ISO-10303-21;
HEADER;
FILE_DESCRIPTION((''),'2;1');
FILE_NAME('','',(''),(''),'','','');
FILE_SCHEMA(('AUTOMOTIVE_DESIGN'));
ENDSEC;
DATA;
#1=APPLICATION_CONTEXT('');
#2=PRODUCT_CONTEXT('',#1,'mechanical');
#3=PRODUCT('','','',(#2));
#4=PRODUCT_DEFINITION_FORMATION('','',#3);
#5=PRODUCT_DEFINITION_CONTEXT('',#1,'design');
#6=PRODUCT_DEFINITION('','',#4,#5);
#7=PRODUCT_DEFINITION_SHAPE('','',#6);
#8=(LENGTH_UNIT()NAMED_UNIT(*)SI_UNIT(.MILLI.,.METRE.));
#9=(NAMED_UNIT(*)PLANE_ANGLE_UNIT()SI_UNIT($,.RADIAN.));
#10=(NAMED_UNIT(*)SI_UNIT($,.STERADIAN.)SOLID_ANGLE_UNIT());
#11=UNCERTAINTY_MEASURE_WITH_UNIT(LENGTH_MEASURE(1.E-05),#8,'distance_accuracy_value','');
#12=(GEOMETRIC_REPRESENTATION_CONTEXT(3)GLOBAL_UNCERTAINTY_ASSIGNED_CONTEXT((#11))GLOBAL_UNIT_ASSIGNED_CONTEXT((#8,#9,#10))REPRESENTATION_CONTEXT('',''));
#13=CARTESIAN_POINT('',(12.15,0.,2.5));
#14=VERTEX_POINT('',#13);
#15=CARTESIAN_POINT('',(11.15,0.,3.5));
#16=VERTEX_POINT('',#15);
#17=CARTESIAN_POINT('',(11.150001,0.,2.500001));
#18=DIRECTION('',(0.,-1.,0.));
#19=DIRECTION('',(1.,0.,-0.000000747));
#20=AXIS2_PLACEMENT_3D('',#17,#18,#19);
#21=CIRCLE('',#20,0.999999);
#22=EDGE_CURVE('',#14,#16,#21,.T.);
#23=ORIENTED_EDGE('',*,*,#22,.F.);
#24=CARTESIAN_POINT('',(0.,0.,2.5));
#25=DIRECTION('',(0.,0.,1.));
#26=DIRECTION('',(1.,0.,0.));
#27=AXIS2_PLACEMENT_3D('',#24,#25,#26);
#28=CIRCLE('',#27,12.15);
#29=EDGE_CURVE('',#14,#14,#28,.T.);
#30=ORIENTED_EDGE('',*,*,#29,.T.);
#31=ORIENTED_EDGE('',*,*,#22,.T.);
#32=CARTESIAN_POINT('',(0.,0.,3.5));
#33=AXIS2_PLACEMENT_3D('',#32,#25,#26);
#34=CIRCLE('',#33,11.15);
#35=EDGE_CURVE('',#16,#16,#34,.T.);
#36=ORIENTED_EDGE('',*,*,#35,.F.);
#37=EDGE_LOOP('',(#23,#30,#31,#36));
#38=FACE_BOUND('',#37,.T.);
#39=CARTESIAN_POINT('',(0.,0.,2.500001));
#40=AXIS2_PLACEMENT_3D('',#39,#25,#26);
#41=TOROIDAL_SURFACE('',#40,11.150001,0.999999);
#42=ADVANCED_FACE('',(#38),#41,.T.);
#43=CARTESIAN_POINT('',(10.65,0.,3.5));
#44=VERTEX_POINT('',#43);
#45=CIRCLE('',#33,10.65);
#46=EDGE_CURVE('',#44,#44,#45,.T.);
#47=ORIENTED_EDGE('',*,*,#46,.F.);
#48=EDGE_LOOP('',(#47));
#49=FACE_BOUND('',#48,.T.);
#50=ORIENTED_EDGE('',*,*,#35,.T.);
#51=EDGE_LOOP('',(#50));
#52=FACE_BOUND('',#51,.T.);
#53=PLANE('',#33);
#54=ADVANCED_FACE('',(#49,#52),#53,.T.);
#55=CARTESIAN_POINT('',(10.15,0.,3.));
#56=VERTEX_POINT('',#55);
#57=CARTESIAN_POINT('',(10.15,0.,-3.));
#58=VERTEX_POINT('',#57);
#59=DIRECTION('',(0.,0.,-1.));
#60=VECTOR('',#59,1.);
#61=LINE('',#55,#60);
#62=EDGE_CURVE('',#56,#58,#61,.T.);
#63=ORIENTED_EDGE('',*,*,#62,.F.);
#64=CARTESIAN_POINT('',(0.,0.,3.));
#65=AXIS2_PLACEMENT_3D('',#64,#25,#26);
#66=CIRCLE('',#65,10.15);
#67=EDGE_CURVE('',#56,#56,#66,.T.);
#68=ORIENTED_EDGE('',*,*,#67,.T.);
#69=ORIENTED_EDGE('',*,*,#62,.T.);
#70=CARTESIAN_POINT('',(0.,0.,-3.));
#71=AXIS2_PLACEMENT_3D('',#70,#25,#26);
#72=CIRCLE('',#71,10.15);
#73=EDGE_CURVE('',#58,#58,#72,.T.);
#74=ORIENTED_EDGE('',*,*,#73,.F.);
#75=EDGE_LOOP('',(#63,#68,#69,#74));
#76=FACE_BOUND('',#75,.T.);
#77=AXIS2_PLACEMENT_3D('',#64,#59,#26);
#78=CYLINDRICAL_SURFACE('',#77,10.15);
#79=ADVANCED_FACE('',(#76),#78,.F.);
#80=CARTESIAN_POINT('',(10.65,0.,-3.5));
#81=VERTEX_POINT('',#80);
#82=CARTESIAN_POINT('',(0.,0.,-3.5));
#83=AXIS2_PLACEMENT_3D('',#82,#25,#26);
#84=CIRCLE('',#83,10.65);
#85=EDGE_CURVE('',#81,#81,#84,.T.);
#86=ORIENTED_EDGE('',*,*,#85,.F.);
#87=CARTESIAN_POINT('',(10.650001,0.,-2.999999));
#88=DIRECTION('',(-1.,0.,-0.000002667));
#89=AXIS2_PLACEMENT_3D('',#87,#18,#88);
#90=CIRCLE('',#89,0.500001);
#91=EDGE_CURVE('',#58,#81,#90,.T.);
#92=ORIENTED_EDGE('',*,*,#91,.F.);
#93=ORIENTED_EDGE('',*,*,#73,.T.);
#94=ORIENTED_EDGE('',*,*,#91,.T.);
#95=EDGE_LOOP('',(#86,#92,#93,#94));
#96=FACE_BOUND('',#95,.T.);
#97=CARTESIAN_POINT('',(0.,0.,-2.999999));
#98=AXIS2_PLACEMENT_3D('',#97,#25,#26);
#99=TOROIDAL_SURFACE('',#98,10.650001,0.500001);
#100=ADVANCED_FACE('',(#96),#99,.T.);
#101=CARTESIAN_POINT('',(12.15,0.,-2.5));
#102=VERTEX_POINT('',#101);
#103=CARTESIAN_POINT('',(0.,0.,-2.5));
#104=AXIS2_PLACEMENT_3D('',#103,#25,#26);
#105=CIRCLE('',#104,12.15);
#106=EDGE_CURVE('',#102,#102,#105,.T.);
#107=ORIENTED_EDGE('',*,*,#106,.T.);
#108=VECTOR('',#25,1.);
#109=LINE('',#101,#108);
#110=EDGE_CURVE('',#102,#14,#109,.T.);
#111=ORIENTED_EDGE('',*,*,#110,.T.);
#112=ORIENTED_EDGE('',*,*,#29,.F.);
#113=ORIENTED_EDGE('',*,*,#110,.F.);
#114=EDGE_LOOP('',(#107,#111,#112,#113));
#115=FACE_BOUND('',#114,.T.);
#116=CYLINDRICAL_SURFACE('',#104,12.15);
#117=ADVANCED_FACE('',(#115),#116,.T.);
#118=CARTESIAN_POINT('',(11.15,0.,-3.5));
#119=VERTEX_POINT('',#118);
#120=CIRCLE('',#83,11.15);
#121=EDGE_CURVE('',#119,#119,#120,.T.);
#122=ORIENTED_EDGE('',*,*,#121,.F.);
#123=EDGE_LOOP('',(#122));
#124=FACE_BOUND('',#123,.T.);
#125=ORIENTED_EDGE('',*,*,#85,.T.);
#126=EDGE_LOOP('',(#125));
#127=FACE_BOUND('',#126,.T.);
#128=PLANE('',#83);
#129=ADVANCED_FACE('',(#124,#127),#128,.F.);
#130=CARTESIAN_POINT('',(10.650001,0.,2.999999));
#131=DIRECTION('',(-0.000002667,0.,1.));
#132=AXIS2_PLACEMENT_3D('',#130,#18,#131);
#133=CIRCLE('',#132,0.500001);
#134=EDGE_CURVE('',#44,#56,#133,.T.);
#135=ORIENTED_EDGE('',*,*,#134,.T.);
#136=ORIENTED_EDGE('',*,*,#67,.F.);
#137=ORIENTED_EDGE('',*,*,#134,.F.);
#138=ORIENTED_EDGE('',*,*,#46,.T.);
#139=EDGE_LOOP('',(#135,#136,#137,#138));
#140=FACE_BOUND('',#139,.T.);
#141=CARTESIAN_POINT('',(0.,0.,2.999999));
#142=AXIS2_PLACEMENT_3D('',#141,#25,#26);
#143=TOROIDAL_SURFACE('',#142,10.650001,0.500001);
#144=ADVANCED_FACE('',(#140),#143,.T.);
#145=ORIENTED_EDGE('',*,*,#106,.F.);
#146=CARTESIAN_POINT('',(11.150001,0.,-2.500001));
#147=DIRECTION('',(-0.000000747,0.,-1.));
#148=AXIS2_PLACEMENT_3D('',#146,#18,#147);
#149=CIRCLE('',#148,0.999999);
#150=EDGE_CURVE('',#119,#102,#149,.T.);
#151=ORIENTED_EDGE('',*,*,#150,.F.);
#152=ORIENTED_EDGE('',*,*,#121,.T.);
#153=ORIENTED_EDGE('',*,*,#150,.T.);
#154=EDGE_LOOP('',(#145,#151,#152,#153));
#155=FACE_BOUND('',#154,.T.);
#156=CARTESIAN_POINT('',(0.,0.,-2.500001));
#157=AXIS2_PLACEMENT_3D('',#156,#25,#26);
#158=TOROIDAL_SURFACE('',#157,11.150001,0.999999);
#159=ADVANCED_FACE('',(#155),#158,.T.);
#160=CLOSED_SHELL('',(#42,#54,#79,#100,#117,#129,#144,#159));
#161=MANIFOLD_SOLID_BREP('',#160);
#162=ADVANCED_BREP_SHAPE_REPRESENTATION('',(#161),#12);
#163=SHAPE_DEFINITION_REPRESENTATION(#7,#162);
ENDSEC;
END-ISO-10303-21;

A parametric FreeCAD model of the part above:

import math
import FreeCAD as App
import Part
import Sketcher
Q = App.Units.Quantity

doc = App.newDocument("Part")
params = doc.addObject("Spreadsheet::Sheet", "Params")
for row, (alias, value) in enumerate([
    ("sketch1_radius", "0.999999 mm"),
    ("sketch1_radius2", "0.500001 mm"),
    ("sketch1_height", "6 mm"),
    ("sketch1_height2", "5 mm"),
    ("sketch1_width", "0.5 mm"),
    ("revolution_angle", "360 deg"),
], start=1):
    params.set(f"A{row}", alias)
    params.set(f"B{row}", "=" + value)
    params.setAlias(f"B{row}", alias)

body = doc.addObject("PartDesign::Body", "Body")

# Sketch on XZ plane
sketch1 = body.newObject("Sketcher::SketchObject", "Sketch")
sketch1.AttachmentSupport = (doc.getObject("XZ_Plane"), [""])
sketch1.MapMode = "FlatFace"
sketch1.addGeometry([
    Part.LineSegment(App.Vector(11.2, 3.5, 0), App.Vector(10.7, 3.5, 0)),  # 0
    Part.ArcOfCircle(Part.Circle(App.Vector(10.7, 3, 0), App.Vector(0, 0, 1), 0.5), math.radians(90), math.radians(180)),  # 1
    Part.LineSegment(App.Vector(10.2, 3, 0), App.Vector(10.2, -3, 0)),  # 2
    Part.ArcOfCircle(Part.Circle(App.Vector(10.7, -3, 0), App.Vector(0, 0, 1), 0.5), math.radians(-180), math.radians(-90)),  # 3
    Part.LineSegment(App.Vector(10.7, -3.5, 0), App.Vector(11.2, -3.5, 0)),  # 4
    Part.ArcOfCircle(Part.Circle(App.Vector(11.2, -2.5, 0), App.Vector(0, 0, 1), 1), math.radians(-90), math.radians(0)),  # 5
    Part.LineSegment(App.Vector(12.2, -2.5, 0), App.Vector(12.2, 2.5, 0)),  # 6
    Part.ArcOfCircle(Part.Circle(App.Vector(11.2, 2.5, 0), App.Vector(0, 0, 1), 1), math.radians(0), math.radians(90)),  # 7
], False)
sketch1.addConstraint([
    Sketcher.Constraint("Coincident", 0, 2, 1, 1),
    Sketcher.Constraint("Coincident", 1, 2, 2, 1),
    Sketcher.Constraint("Coincident", 2, 2, 3, 1),
    Sketcher.Constraint("Coincident", 3, 2, 4, 1),
    Sketcher.Constraint("Tangent", 4, 2, 5, 1),
    Sketcher.Constraint("Tangent", 5, 2, 6, 1),
    Sketcher.Constraint("Tangent", 6, 2, 7, 1),
    Sketcher.Constraint("Tangent", 7, 2, 0, 1),
    Sketcher.Constraint("Horizontal", 0),
    Sketcher.Constraint("Vertical", 2),
    Sketcher.Constraint("Horizontal", 4),
    Sketcher.Constraint("Vertical", 6),
    Sketcher.Constraint("Equal", 1, 3),
    Sketcher.Constraint("Equal", 5, 7),
    Sketcher.Constraint("Symmetric", 0, 2, 3, 2, -1),
    Sketcher.Constraint("Horizontal", 3, 3, 2, 2),
    Sketcher.Constraint("Vertical", 3, 3, 0, 2),
    Sketcher.Constraint("Radius", 5, Q("0.999999 mm")),
    Sketcher.Constraint("Radius", 1, Q("0.500001 mm")),
    Sketcher.Constraint("DistanceY", 2, 2, 2, 1, Q("6 mm")),
    Sketcher.Constraint("DistanceY", 6, 1, 6, 2, Q("5 mm")),
    Sketcher.Constraint("DistanceX", 0, 2, 0, 1, Q("0.5 mm")),
    Sketcher.Constraint("DistanceX", -1, 1, 1, 3, Q("10.650001 mm")),
])
sketch1.setExpression("Constraints[17]", "Params.sketch1_radius")
sketch1.setExpression("Constraints[18]", "Params.sketch1_radius2")
sketch1.setExpression("Constraints[19]", "Params.sketch1_height")
sketch1.setExpression("Constraints[20]", "Params.sketch1_height2")
sketch1.setExpression("Constraints[21]", "Params.sketch1_width")
revolution = body.newObject("PartDesign::Revolution", "Revolution")
revolution.Profile = sketch1
revolution.ReferenceAxis = (sketch1, ["V_Axis"])
revolution.setExpression("Angle", "Params.revolution_angle")

doc.recompute()
